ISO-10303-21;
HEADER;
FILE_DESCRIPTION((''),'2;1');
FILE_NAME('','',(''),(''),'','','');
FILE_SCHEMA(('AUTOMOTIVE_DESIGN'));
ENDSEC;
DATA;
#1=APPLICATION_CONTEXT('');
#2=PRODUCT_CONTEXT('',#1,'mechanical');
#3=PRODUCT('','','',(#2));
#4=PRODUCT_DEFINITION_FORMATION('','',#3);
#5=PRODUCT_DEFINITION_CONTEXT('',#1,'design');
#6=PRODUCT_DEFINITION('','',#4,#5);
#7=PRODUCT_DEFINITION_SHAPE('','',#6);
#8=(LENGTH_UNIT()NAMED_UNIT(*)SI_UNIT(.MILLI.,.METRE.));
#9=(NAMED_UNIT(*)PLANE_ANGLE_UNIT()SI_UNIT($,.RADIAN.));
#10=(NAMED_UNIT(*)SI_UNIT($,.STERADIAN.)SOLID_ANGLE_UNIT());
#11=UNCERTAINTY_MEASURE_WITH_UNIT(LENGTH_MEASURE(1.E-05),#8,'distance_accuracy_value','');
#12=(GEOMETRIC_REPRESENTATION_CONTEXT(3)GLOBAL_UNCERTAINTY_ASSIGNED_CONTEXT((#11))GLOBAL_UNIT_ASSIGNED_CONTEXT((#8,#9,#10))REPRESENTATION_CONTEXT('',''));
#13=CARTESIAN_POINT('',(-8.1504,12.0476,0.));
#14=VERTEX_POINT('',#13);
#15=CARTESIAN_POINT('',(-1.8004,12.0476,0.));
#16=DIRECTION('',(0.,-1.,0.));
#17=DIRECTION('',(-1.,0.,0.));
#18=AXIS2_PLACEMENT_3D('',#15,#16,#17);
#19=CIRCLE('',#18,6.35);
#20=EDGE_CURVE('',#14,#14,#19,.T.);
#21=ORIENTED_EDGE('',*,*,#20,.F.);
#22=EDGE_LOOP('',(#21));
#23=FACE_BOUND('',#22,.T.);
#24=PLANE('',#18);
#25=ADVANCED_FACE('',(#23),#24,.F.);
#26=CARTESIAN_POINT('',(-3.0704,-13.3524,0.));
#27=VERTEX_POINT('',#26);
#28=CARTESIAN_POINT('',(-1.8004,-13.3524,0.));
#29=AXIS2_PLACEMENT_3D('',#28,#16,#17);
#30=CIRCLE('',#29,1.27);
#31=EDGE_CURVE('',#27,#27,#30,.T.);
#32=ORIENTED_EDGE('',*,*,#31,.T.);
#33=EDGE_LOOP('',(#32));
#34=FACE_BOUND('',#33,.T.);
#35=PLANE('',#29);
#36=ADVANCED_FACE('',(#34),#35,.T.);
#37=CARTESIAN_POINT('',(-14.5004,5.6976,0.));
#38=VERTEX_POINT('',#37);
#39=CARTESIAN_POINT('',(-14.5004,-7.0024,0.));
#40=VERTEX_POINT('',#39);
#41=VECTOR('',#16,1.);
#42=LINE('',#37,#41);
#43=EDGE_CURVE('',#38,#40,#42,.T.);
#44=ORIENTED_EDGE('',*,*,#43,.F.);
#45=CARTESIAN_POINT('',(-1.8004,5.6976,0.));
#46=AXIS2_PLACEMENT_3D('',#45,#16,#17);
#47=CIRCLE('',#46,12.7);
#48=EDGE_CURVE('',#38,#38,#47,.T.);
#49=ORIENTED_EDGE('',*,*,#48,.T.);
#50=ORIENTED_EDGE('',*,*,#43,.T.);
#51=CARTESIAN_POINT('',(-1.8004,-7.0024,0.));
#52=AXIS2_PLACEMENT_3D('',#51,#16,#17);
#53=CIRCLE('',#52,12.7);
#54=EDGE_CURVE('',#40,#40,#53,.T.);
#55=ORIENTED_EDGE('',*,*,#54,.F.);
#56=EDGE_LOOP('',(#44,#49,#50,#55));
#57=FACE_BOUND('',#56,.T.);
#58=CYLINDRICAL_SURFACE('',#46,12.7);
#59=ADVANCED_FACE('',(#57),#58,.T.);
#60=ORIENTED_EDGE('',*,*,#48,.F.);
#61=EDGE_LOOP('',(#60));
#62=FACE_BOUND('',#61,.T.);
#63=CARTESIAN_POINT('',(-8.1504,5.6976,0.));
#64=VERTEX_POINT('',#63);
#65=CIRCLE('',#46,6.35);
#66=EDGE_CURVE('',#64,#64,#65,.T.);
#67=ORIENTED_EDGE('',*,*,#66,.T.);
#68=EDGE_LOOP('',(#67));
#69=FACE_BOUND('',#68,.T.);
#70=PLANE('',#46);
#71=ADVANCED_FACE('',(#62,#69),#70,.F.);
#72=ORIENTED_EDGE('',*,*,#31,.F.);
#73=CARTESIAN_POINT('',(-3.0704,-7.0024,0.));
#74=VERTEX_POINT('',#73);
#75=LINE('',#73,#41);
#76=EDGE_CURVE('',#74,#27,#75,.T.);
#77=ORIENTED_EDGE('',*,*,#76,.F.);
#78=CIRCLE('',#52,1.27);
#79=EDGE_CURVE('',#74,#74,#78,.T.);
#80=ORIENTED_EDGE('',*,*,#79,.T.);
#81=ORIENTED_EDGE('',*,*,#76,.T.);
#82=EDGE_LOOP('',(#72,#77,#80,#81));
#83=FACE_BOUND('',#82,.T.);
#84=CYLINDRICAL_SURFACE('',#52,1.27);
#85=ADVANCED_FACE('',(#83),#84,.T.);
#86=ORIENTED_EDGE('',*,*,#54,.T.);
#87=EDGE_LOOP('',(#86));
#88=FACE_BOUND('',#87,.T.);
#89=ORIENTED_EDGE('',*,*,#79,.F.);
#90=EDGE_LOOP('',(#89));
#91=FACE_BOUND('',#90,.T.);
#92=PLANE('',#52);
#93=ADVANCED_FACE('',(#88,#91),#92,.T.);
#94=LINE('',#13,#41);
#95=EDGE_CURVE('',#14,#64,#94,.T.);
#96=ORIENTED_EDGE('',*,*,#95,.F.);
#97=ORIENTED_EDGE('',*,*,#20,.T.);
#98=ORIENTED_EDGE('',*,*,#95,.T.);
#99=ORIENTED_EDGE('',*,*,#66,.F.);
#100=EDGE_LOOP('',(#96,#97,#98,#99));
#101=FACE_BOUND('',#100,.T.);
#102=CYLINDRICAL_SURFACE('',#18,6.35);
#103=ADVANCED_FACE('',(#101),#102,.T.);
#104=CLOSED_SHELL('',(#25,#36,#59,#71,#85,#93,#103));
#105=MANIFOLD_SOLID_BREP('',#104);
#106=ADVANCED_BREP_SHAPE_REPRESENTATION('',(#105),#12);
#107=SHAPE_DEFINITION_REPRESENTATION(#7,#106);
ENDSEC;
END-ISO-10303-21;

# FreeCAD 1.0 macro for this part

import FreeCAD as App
import Part
import Sketcher
Q = App.Units.Quantity


def add_polygon(sketch, points):
    """Adds a closed chain of lines whose ends are joined by coincident constraints."""
    first, n = sketch.GeometryCount, len(points)
    for a, b in zip(points, points[1:] + points[:1]):
        sketch.addGeometry(Part.LineSegment(App.Vector(*a, 0), App.Vector(*b, 0)), False)
    for i in range(n):
        sketch.addConstraint(Sketcher.Constraint("Coincident", first + i, 2, first + (i + 1) % n, 1))

doc = App.newDocument("Part")
body = doc.addObject("PartDesign::Body", "Body")

# Sketch on XY plane
sketch1 = body.newObject("Sketcher::SketchObject", "Sketch")
sketch1.AttachmentSupport = (doc.getObject("XY_Plane"), [""])
sketch1.MapMode = "FlatFace"
add_polygon(sketch1, [(-1.8004, 12.0476), (-8.1504, 12.0476), (-8.1504, 5.6976), (-14.5004, 5.6976), (-14.5004, -7.0024), (-3.0704, -7.0024), (-3.0704, -13.3524), (-1.8004, -13.3524)])  # lines 0-7
sketch1.addGeometry(Part.LineSegment(App.Vector(-1.8004, 12.0476, 0), App.Vector(-1.8004, -13.3524, 0)), True)  # axis
sketch1.addConstraint(Sketcher.Constraint("Horizontal", 0))
sketch1.addConstraint(Sketcher.Constraint("Vertical", 1))
sketch1.addConstraint(Sketcher.Constraint("Horizontal", 2))
sketch1.addConstraint(Sketcher.Constraint("Vertical", 3))
sketch1.addConstraint(Sketcher.Constraint("Horizontal", 4))
sketch1.addConstraint(Sketcher.Constraint("Vertical", 5))
sketch1.addConstraint(Sketcher.Constraint("Horizontal", 6))
sketch1.addConstraint(Sketcher.Constraint("Vertical", 7))
sketch1.addConstraint(Sketcher.Constraint("Vertical", 8))
sketch1.addConstraint(Sketcher.Constraint("Coincident", 8, 1, 7, 2))
sketch1.addConstraint(Sketcher.Constraint("Horizontal", 5, 2, 8, 2))
sketch1.addConstraint(Sketcher.Constraint("Equal", 0, 2))
sketch1.addConstraint(Sketcher.Constraint("Equal", 2, 1))
sketch1.addConstraint(Sketcher.Constraint("Equal", 1, 5))
sketch1.addConstraint(Sketcher.Constraint("DistanceY", 3, 2, 3, 1, Q("0.5 in")))
sketch1.addConstraint(Sketcher.Constraint("DistanceX", 0, 2, 0, 1, Q("0.25 in")))
sketch1.addConstraint(Sketcher.Constraint("DistanceX", 6, 1, 6, 2, Q("0.05 in")))
sketch1.addConstraint(Sketcher.Constraint("DistanceX", 0, 2, -1, 1, 8.1504))
sketch1.addConstraint(Sketcher.Constraint("DistanceY", -1, 1, 0, 2, 12.0476))
revolution = body.newObject("PartDesign::Revolution", "Revolution")
revolution.Profile = sketch1
revolution.ReferenceAxis = (sketch1, ["Axis0"])
revolution.Angle = 360

doc.recompute()
